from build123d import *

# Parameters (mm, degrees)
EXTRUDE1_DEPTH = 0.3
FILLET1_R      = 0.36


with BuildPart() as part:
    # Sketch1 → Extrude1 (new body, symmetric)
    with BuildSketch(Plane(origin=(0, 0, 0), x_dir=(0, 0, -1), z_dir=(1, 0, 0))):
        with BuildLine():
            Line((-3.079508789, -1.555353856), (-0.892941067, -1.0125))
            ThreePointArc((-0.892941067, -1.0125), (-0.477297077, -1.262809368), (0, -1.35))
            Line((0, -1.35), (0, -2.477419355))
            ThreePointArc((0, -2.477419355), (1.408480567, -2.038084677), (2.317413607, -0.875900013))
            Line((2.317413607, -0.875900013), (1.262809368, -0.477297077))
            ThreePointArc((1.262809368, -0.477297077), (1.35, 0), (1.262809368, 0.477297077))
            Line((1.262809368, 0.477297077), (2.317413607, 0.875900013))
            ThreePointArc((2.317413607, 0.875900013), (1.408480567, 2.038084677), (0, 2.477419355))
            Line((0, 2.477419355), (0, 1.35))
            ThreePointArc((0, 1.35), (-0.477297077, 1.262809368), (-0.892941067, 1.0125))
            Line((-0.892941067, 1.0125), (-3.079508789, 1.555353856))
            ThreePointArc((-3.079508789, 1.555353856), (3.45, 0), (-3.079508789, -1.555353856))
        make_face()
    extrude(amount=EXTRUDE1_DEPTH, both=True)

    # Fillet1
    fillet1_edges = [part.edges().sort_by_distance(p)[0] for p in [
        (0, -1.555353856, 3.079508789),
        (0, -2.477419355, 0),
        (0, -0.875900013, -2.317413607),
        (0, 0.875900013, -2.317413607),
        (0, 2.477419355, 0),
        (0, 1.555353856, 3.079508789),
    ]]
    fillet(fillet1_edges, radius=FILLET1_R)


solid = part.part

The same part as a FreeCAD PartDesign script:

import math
import FreeCAD as App
import Part
import Sketcher

V = App.Vector
Q = App.Units.Quantity


def edges_at(feature, points):
    """Names of the edges that pass closest to the given points."""
    edges = feature.Shape.Edges
    near = lambda p: min(range(len(edges)), key=lambda i: edges[i].distToShape(Part.Vertex(*p))[0])
    return sorted({f"Edge{near(p) + 1}" for p in points})

doc = App.newDocument("Part")
body = doc.addObject("PartDesign::Body", "Body")

# Sketch on YZ plane
sketch1 = body.newObject("Sketcher::SketchObject", "Sketch")
sketch1.AttachmentSupport = (doc.getObject("YZ_Plane"), [""])
sketch1.MapMode = "FlatFace"
sketch1.addGeometry([
    Part.LineSegment(V(-1, 0.9, 0), V(-1.6, 3.1, 0)),  # 0
    Part.ArcOfCircle(Part.Circle(V(0, 0, 0), V(0, 0, 1), 3.5), math.radians(117), math.radians(423)),  # 1
    Part.LineSegment(V(1.6, 3.1, 0), V(1, 0.9, 0)),  # 2
    Part.ArcOfCircle(Part.Circle(V(0, 0, 0), V(0, 0, 1), 1.4), math.radians(0), math.radians(41)),  # 3
    Part.LineSegment(V(1.4, 0, 0), V(2.5, 0, 0)),  # 4
    Part.ArcOfCircle(Part.Circle(V(0, 0, 0), V(0, 0, 1), 2.5), math.radians(-69), math.radians(0)),  # 5
    Part.LineSegment(V(0.9, -2.3, 0), V(0.5, -1.3, 0)),  # 6
    Part.ArcOfCircle(Part.Circle(V(0, 0, 0), V(0, 0, 1), 1.3), math.radians(-111), math.radians(-69)),  # 7
    Part.LineSegment(V(-0.5, -1.3, 0), V(-0.9, -2.3, 0)),  # 8
    Part.ArcOfCircle(Part.Circle(V(0, 0, 0), V(0, 0, 1), 2.5), math.radians(-180), math.radians(-111)),  # 9
    Part.LineSegment(V(-2.5, 0, 0), V(-1.4, 0, 0)),  # 10
    Part.ArcOfCircle(Part.Circle(V(0, 0, 0), V(0, 0, 1), 1.4), math.radians(139), math.radians(180)),  # 11
], False)
sketch1.addConstraint([
    Sketcher.Constraint("Coincident", 0, 2, 1, 1),
    Sketcher.Constraint("Coincident", 1, 2, 2, 1),
    Sketcher.Constraint("Coincident", 2, 2, 3, 2),
    Sketcher.Constraint("Coincident", 3, 1, 4, 1),
    Sketcher.Constraint("Coincident", 4, 2, 5, 2),
    Sketcher.Constraint("Coincident", 5, 1, 6, 1),
    Sketcher.Constraint("Coincident", 6, 2, 7, 2),
    Sketcher.Constraint("Coincident", 7, 1, 8, 1),
    Sketcher.Constraint("Coincident", 8, 2, 9, 2),
    Sketcher.Constraint("Coincident", 9, 1, 10, 1),
    Sketcher.Constraint("Coincident", 10, 2, 11, 2),
    Sketcher.Constraint("Coincident", 11, 1, 0, 1),
    Sketcher.Constraint("Horizontal", 4),
    Sketcher.Constraint("Horizontal", 10),
    Sketcher.Constraint("Coincident", 1, 3, -1, 1),
    Sketcher.Constraint("Coincident", 3, 3, -1, 1),
    Sketcher.Constraint("Coincident", 5, 3, -1, 1),
    Sketcher.Constraint("Coincident", 7, 3, -1, 1),
    Sketcher.Constraint("Coincident", 9, 3, -1, 1),
    Sketcher.Constraint("Coincident", 11, 3, -1, 1),
    Sketcher.Constraint("Equal", 3, 7),
    Sketcher.Constraint("Equal", 5, 9),
    Sketcher.Constraint("Equal", 7, 11),
    Sketcher.Constraint("PointOnObject", 3, 1, -1),
    Sketcher.Constraint("PointOnObject", 9, 1, -1),
    Sketcher.Constraint("Horizontal", 0, 2, 1, 2),
    Sketcher.Constraint("Horizontal", 6, 2, 7, 1),
    Sketcher.Constraint("Horizontal", 5, 1, 8, 2),
    Sketcher.Constraint("Horizontal", 2, 2, 11, 1),
    Sketcher.Constraint("Radius", 1, Q("3.45 mm")),
    Sketcher.Constraint("Radius", 3, Q("1.35 mm")),
    Sketcher.Constraint("Radius", 5, Q("2.477419 mm")),
    Sketcher.Constraint("DistanceX", -1, 1, 2, 2, Q("1.0125 mm")),
    Sketcher.Constraint("DistanceX", -1, 1, 5, 1, Q("0.8759 mm")),
    Sketcher.Constraint("DistanceY", -1, 1, 0, 2, Q("3.079509 mm")),
    Sketcher.Constraint("DistanceY", 6, 2, -1, 1, Q("1.262809 mm")),
])
pad1 = body.newObject("PartDesign::Pad", "Pad")
pad1.Profile = sketch1
pad1.Length = 0.6
pad1.Midplane = True
doc.recompute()

fillet = body.newObject("PartDesign::Fillet", "Fillet")
fillet.Base = (pad1, edges_at(pad1, [
    (0, -1.555, 3.08),
    (0, -2.477, 0),
    (0, -0.876, -2.317),
    (0, 0.876, -2.317),
    (0, 2.477, 0),
    (0, 1.555, 3.08),
]))
fillet.Radius = 0.36

doc.recompute()
